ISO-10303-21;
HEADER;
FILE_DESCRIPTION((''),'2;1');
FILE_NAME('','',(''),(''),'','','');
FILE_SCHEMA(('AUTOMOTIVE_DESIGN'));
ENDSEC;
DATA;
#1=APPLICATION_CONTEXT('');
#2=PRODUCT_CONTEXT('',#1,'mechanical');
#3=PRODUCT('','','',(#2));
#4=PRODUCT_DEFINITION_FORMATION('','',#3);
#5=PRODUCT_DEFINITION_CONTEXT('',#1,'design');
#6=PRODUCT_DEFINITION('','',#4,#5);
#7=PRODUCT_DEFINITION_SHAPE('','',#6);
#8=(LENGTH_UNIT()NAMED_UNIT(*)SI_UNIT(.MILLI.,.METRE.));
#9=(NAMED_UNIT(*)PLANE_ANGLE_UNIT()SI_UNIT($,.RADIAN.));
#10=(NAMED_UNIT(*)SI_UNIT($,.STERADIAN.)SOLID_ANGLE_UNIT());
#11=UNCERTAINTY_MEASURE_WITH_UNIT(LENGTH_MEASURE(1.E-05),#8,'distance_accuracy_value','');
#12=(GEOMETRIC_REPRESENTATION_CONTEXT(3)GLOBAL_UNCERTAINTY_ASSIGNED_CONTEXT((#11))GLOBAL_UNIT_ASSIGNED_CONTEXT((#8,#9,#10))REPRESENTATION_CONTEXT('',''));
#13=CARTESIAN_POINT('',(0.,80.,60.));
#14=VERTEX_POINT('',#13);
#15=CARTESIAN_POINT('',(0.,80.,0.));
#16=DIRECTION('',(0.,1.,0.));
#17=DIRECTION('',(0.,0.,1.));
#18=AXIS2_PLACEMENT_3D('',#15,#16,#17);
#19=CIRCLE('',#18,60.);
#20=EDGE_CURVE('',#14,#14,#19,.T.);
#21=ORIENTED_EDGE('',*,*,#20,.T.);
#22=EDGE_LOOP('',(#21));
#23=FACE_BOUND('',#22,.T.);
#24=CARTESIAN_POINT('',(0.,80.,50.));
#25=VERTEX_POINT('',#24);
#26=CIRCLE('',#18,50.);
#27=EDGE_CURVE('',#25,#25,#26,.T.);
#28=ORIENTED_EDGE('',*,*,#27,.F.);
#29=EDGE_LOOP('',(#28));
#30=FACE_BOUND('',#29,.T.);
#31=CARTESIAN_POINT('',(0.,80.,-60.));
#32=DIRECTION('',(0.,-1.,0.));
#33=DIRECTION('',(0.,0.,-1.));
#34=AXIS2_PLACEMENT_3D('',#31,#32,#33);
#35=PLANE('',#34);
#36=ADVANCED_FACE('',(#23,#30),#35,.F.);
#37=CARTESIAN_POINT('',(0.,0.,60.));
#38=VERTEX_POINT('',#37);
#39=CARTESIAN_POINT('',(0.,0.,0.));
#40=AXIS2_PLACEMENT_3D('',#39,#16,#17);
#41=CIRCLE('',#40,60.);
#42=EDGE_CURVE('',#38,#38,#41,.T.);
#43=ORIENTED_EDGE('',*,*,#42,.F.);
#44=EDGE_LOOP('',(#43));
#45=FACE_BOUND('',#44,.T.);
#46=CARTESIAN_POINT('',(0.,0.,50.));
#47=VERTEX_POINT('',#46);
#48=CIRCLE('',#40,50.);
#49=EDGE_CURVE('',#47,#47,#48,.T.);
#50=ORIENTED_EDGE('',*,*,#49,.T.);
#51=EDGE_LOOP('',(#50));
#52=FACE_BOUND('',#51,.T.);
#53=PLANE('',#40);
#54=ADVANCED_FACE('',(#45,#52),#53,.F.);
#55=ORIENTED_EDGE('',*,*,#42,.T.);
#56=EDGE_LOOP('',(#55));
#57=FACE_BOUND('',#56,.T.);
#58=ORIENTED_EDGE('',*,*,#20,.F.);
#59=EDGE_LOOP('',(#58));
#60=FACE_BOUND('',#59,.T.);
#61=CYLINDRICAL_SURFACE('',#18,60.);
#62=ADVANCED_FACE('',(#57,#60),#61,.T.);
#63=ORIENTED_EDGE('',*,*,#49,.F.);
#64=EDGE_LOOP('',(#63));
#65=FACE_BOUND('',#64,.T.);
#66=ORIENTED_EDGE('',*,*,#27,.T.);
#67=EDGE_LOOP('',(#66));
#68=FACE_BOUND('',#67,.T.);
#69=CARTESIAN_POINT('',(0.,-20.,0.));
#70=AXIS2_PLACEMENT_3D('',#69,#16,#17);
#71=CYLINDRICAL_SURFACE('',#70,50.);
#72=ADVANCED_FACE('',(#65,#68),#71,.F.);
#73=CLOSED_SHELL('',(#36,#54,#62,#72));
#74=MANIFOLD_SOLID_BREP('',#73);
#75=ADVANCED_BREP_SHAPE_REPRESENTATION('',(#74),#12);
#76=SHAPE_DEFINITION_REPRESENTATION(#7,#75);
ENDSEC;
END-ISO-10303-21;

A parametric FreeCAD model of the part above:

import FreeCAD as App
import Part
import Sketcher

V = App.Vector

doc = App.newDocument("Part")
params = doc.addObject("Spreadsheet::Sheet", "Params")
for row, (alias, value) in enumerate([
    ("sketch1_width", "80 mm"),
    ("sketch1_height", "60 mm"),
    ("revolution_angle", "360 deg"),
    ("sketch2_diameter", "100 mm"),
    ("pocket1_length", "100 mm"),
], start=1):
    params.set(f"A{row}", alias)
    params.set(f"B{row}", "=" + value)
    params.setAlias(f"B{row}", alias)

body = doc.addObject("PartDesign::Body", "Body")

sketch1 = body.newObject("Sketcher::SketchObject", "Sketch")
sketch1.AttachmentSupport = (doc.getObject("YZ_Plane"), [""])
sketch1.MapMode = "FlatFace"
sketch1.addGeometry(Part.LineSegment(V(80, 0, 0), V(0, 0, 0)), False)
sketch1.addGeometry(Part.LineSegment(V(0, 0, 0), V(0, -60, 0)), False)
sketch1.addGeometry(Part.LineSegment(V(0, -60, 0), V(80, -60, 0)), False)
sketch1.addGeometry(Part.LineSegment(V(80, -60, 0), V(80, 0, 0)), False)
sketch1.addConstraint(Sketcher.Constraint("Coincident", 0, 2, 1, 1))
sketch1.addConstraint(Sketcher.Constraint("Coincident", 1, 2, 2, 1))
sketch1.addConstraint(Sketcher.Constraint("Coincident", 2, 2, 3, 1))
sketch1.addConstraint(Sketcher.Constraint("Coincident", 3, 2, 0, 1))
sketch1.addConstraint(Sketcher.Constraint("Horizontal", 0))
sketch1.addConstraint(Sketcher.Constraint("Vertical", 1))
sketch1.addConstraint(Sketcher.Constraint("Horizontal", 2))
sketch1.addConstraint(Sketcher.Constraint("Vertical", 3))
sketch1.addConstraint(Sketcher.Constraint("Coincident", 0, 2, -1, 1))
sketch1.addConstraint(Sketcher.Constraint("DistanceX", 0, 2, 0, 1, 80.0))
sketch1.addConstraint(Sketcher.Constraint("DistanceY", 1, 2, 1, 1, 60.0))
sketch1.setExpression("Constraints[9]", "Params.sketch1_width")
sketch1.setExpression("Constraints[10]", "Params.sketch1_height")
revolution = body.newObject("PartDesign::Revolution", "Revolution")
revolution.Profile = sketch1
revolution.ReferenceAxis = (sketch1, ["H_Axis"])
revolution.setExpression("Angle", "Params.revolution_angle")

sketch2 = body.newObject("Sketcher::SketchObject", "Sketch001")
sketch2.AttachmentSupport = (doc.getObject("XZ_Plane"), [""])
sketch2.MapMode = "FlatFace"
sketch2.AttachmentOffset = App.Placement(V(0, 0, -80), App.Rotation())
sketch2.addGeometry(Part.Circle(V(0, 0, 0), V(0, 0, 1), 50), False)
sketch2.addConstraint(Sketcher.Constraint("Coincident", 0, 3, -1, 1))
sketch2.addConstraint(Sketcher.Constraint("Diameter", 0, 100.0))
sketch2.setExpression("Constraints[1]", "Params.sketch2_diameter")
pocket1 = body.newObject("PartDesign::Pocket", "Pocket")
pocket1.Profile = sketch2
pocket1.setExpression("Length", "Params.pocket1_length")
pocket1.Reversed = True

doc.recompute()
